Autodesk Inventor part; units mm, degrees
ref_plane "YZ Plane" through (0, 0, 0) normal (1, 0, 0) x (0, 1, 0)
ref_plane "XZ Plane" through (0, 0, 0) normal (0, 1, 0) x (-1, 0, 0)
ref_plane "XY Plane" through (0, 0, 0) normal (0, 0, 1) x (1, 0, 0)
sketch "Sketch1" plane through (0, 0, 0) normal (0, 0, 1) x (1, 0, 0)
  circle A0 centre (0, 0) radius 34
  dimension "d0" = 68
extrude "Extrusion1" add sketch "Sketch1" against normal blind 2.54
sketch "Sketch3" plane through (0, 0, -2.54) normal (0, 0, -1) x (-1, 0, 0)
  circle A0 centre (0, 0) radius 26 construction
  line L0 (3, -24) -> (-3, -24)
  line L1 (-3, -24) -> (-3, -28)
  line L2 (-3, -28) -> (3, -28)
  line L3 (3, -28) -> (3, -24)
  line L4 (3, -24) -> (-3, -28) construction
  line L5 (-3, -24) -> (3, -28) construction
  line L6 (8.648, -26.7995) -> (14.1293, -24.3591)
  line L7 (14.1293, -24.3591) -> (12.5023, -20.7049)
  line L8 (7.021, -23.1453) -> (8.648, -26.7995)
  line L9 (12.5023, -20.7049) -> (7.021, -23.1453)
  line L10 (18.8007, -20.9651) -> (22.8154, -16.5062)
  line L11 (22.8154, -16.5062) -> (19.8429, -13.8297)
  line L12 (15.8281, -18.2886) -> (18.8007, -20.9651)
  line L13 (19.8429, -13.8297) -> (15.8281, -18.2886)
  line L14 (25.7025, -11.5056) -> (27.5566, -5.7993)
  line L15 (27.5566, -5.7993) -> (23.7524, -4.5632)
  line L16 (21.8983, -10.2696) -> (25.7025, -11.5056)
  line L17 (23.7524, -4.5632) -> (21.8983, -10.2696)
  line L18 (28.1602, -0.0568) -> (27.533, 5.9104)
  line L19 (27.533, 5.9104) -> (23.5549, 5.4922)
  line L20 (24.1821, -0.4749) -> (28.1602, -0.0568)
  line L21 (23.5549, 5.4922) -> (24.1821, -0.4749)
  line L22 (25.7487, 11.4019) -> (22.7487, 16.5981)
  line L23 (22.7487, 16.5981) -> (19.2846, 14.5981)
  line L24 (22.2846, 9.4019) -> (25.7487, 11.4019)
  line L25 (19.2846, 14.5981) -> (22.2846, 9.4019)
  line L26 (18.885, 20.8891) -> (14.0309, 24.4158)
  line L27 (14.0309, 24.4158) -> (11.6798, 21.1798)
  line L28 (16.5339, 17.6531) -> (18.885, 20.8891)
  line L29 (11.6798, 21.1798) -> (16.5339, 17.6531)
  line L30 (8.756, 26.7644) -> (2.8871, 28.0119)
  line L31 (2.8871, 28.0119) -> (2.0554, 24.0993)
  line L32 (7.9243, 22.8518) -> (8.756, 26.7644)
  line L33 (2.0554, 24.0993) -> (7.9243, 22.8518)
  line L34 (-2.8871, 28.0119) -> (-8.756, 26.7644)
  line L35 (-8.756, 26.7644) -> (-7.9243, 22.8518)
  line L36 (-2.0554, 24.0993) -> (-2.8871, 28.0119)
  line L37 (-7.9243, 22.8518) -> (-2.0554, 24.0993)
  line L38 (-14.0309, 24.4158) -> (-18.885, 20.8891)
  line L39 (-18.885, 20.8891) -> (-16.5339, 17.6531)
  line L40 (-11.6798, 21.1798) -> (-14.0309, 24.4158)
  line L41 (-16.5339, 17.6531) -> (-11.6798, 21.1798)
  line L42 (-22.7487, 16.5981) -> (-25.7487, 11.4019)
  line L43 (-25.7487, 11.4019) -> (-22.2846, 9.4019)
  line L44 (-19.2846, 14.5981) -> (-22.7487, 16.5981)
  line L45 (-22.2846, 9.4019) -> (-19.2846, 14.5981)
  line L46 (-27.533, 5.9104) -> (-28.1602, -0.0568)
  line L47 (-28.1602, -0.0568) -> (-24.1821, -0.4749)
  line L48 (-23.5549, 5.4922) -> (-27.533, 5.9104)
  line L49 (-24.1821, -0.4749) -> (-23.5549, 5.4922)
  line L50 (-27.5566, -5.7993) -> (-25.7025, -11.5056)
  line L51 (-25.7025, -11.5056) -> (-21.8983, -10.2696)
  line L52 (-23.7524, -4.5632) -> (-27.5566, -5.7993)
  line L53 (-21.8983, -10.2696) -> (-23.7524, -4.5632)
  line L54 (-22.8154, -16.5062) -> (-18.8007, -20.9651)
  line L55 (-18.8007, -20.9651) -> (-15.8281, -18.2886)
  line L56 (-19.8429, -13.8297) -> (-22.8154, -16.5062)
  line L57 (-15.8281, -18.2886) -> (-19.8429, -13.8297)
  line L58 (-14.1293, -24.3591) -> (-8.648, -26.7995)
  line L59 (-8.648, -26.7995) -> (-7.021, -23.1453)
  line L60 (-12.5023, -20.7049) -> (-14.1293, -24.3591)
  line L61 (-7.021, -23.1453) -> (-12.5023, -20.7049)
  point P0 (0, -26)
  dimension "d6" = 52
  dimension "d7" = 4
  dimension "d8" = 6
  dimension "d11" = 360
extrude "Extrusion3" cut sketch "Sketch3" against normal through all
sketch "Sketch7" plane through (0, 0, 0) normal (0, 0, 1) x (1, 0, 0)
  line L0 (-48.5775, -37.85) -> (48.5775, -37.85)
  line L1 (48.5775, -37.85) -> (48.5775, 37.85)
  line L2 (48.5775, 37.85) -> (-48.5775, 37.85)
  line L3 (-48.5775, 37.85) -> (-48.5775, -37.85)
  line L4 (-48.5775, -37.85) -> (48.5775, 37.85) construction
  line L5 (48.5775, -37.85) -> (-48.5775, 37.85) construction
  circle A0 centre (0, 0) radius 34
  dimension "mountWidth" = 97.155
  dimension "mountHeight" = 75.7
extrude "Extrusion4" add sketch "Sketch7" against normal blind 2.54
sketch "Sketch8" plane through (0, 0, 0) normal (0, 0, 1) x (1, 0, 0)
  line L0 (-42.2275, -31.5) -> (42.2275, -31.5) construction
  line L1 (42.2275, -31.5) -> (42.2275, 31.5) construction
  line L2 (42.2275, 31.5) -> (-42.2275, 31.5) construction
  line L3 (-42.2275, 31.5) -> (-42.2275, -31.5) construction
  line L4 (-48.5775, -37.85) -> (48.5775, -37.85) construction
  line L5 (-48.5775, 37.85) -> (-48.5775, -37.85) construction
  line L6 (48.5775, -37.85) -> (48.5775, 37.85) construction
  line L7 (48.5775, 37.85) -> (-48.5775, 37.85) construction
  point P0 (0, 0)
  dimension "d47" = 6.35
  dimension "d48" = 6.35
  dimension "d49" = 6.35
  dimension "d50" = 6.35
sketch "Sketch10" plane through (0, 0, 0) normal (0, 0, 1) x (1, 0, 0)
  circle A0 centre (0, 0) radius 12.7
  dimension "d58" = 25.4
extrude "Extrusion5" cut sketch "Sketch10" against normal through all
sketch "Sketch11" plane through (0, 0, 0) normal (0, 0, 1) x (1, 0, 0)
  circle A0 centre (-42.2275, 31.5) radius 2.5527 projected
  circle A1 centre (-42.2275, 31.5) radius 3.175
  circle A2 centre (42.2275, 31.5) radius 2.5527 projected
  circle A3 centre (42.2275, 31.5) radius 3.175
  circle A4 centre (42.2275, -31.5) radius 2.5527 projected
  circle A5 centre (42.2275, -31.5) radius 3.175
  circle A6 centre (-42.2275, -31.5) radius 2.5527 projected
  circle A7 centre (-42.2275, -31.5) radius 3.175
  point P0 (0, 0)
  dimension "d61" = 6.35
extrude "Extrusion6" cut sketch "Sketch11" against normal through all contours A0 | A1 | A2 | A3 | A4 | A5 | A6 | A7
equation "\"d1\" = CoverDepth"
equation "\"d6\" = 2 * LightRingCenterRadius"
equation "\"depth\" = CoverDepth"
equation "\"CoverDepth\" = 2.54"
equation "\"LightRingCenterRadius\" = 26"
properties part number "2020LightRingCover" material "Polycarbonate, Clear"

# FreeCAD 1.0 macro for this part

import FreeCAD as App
import Part
import Sketcher
from FreeCAD import Vector
Q = App.Units.Quantity

doc = App.newDocument("Part")
body = doc.addObject("PartDesign::Body", "Body")

sketch1 = body.newObject("Sketcher::SketchObject", "Sketch")
sketch1.AttachmentSupport = (doc.getObject("XY_Plane"), [""])
sketch1.MapMode = "FlatFace"
sketch1.addGeometry(Part.Circle(Vector(0, 0, 0), Vector(0, 0, 1), 34), False)
sketch1.addConstraint([
    Sketcher.Constraint("Coincident", 0, 3, -1, 1),
    Sketcher.Constraint("Diameter", 0, Q("68 mm")),
])
pad1 = body.newObject("PartDesign::Pad", "Pad")
pad1.Profile = sketch1
pad1.Length = 2.54
pad1.Reversed = True

sketch2 = body.newObject("Sketcher::SketchObject", "Sketch001")
sketch2.AttachmentSupport = (doc.getObject("XY_Plane"), [""])
sketch2.MapMode = "FlatFace"
sketch2.AttachmentOffset = App.Placement(Vector(0, 0, -2.54), App.Rotation())
sketch2.addGeometry([
    Part.LineSegment(Vector(-3, -28, 0), Vector(-3, -24, 0)),
    Part.LineSegment(Vector(-3, -24, 0), Vector(3, -24, 0)),
    Part.LineSegment(Vector(3, -24, 0), Vector(3, -28, 0)),
    Part.LineSegment(Vector(3, -28, 0), Vector(-3, -28, 0)),
    Part.LineSegment(Vector(-7, -23.1, 0), Vector(-8.6, -26.8, 0)),
    Part.LineSegment(Vector(-8.6, -26.8, 0), Vector(-14.1, -24.4, 0)),
    Part.LineSegment(Vector(-14.1, -24.4, 0), Vector(-12.5, -20.7, 0)),
    Part.LineSegment(Vector(-12.5, -20.7, 0), Vector(-7, -23.1, 0)),
    Part.LineSegment(Vector(-15.8, -18.3, 0), Vector(-18.8, -21, 0)),
    Part.LineSegment(Vector(-18.8, -21, 0), Vector(-22.8, -16.5, 0)),
    Part.LineSegment(Vector(-22.8, -16.5, 0), Vector(-19.8, -13.8, 0)),
    Part.LineSegment(Vector(-19.8, -13.8, 0), Vector(-15.8, -18.3, 0)),
    Part.LineSegment(Vector(-21.9, -10.3, 0), Vector(-25.7, -11.5, 0)),
    Part.LineSegment(Vector(-25.7, -11.5, 0), Vector(-27.6, -5.8, 0)),
    Part.LineSegment(Vector(-27.6, -5.8, 0), Vector(-23.8, -4.6, 0)),
    Part.LineSegment(Vector(-23.8, -4.6, 0), Vector(-21.9, -10.3, 0)),
    Part.LineSegment(Vector(-24.2, -0.5, 0), Vector(-28.2, -0.1, 0)),
    Part.LineSegment(Vector(-28.2, -0.1, 0), Vector(-27.5, 5.9, 0)),
    Part.LineSegment(Vector(-27.5, 5.9, 0), Vector(-23.6, 5.5, 0)),
    Part.LineSegment(Vector(-23.6, 5.5, 0), Vector(-24.2, -0.5, 0)),
    Part.LineSegment(Vector(-22.3, 9.4, 0), Vector(-25.7, 11.4, 0)),
    Part.LineSegment(Vector(-25.7, 11.4, 0), Vector(-22.7, 16.6, 0)),
    Part.LineSegment(Vector(-22.7, 16.6, 0), Vector(-19.3, 14.6, 0)),
    Part.LineSegment(Vector(-19.3, 14.6, 0), Vector(-22.3, 9.4, 0)),
    Part.LineSegment(Vector(-16.5, 17.7, 0), Vector(-18.9, 20.9, 0)),
    Part.LineSegment(Vector(-18.9, 20.9, 0), Vector(-14, 24.4, 0)),
    Part.LineSegment(Vector(-14, 24.4, 0), Vector(-11.7, 21.2, 0)),
    Part.LineSegment(Vector(-11.7, 21.2, 0), Vector(-16.5, 17.7, 0)),
    Part.LineSegment(Vector(-7.9, 22.9, 0), Vector(-8.8, 26.8, 0)),
    Part.LineSegment(Vector(-8.8, 26.8, 0), Vector(-2.9, 28, 0)),
    Part.LineSegment(Vector(-2.9, 28, 0), Vector(-2.1, 24.1, 0)),
    Part.LineSegment(Vector(-2.1, 24.1, 0), Vector(-7.9, 22.9, 0)),
    Part.LineSegment(Vector(2.1, 24.1, 0), Vector(2.9, 28, 0)),
    Part.LineSegment(Vector(2.9, 28, 0), Vector(8.8, 26.8, 0)),
    Part.LineSegment(Vector(8.8, 26.8, 0), Vector(7.9, 22.9, 0)),
    Part.LineSegment(Vector(7.9, 22.9, 0), Vector(2.1, 24.1, 0)),
    Part.LineSegment(Vector(11.7, 21.2, 0), Vector(14, 24.4, 0)),
    Part.LineSegment(Vector(14, 24.4, 0), Vector(18.9, 20.9, 0)),
    Part.LineSegment(Vector(18.9, 20.9, 0), Vector(16.5, 17.7, 0)),
    Part.LineSegment(Vector(16.5, 17.7, 0), Vector(11.7, 21.2, 0)),
    Part.LineSegment(Vector(19.3, 14.6, 0), Vector(22.7, 16.6, 0)),
    Part.LineSegment(Vector(22.7, 16.6, 0), Vector(25.7, 11.4, 0)),
    Part.LineSegment(Vector(25.7, 11.4, 0), Vector(22.3, 9.4, 0)),
    Part.LineSegment(Vector(22.3, 9.4, 0), Vector(19.3, 14.6, 0)),
    Part.LineSegment(Vector(23.6, 5.5, 0), Vector(27.5, 5.9, 0)),
    Part.LineSegment(Vector(27.5, 5.9, 0), Vector(28.2, -0.1, 0)),
    Part.LineSegment(Vector(28.2, -0.1, 0), Vector(24.2, -0.5, 0)),
    Part.LineSegment(Vector(24.2, -0.5, 0), Vector(23.6, 5.5, 0)),
    Part.LineSegment(Vector(23.8, -4.6, 0), Vector(27.6, -5.8, 0)),
    Part.LineSegment(Vector(27.6, -5.8, 0), Vector(25.7, -11.5, 0)),
    Part.LineSegment(Vector(25.7, -11.5, 0), Vector(21.9, -10.3, 0)),
    Part.LineSegment(Vector(21.9, -10.3, 0), Vector(23.8, -4.6, 0)),
    Part.LineSegment(Vector(19.8, -13.8, 0), Vector(22.8, -16.5, 0)),
    Part.LineSegment(Vector(22.8, -16.5, 0), Vector(18.8, -21, 0)),
    Part.LineSegment(Vector(18.8, -21, 0), Vector(15.8, -18.3, 0)),
    Part.LineSegment(Vector(15.8, -18.3, 0), Vector(19.8, -13.8, 0)),
    Part.LineSegment(Vector(12.5, -20.7, 0), Vector(14.1, -24.4, 0)),
    Part.LineSegment(Vector(14.1, -24.4, 0), Vector(8.6, -26.8, 0)),
    Part.LineSegment(Vector(8.6, -26.8, 0), Vector(7, -23.1, 0)),
    Part.LineSegment(Vector(7, -23.1, 0), Vector(12.5, -20.7, 0)),
], False)
sketch2.addConstraint([
    Sketcher.Constraint("Coincident", 0, 2, 1, 1),
    Sketcher.Constraint("Coincident", 1, 2, 2, 1),
    Sketcher.Constraint("Coincident", 2, 2, 3, 1),
    Sketcher.Constraint("Coincident", 3, 2, 0, 1),
    Sketcher.Constraint("Coincident", 4, 2, 5, 1),
    Sketcher.Constraint("Coincident", 5, 2, 6, 1),
    Sketcher.Constraint("Coincident", 6, 2, 7, 1),
    Sketcher.Constraint("Coincident", 7, 2, 4, 1),
    Sketcher.Constraint("Coincident", 8, 2, 9, 1),
    Sketcher.Constraint("Coincident", 9, 2, 10, 1),
    Sketcher.Constraint("Coincident", 10, 2, 11, 1),
    Sketcher.Constraint("Coincident", 11, 2, 8, 1),
    Sketcher.Constraint("Coincident", 12, 2, 13, 1),
    Sketcher.Constraint("Coincident", 13, 2, 14, 1),
    Sketcher.Constraint("Coincident", 14, 2, 15, 1),
    Sketcher.Constraint("Coincident", 15, 2, 12, 1),
    Sketcher.Constraint("Coincident", 16, 2, 17, 1),
    Sketcher.Constraint("Coincident", 17, 2, 18, 1),
    Sketcher.Constraint("Coincident", 18, 2, 19, 1),
    Sketcher.Constraint("Coincident", 19, 2, 16, 1),
    Sketcher.Constraint("Coincident", 20, 2, 21, 1),
    Sketcher.Constraint("Coincident", 21, 2, 22, 1),
    Sketcher.Constraint("Coincident", 22, 2, 23, 1),
    Sketcher.Constraint("Coincident", 23, 2, 20, 1),
    Sketcher.Constraint("Coincident", 24, 2, 25, 1),
    Sketcher.Constraint("Coincident", 25, 2, 26, 1),
    Sketcher.Constraint("Coincident", 26, 2, 27, 1),
    Sketcher.Constraint("Coincident", 27, 2, 24, 1),
    Sketcher.Constraint("Coincident", 28, 2, 29, 1),
    Sketcher.Constraint("Coincident", 29, 2, 30, 1),
    Sketcher.Constraint("Coincident", 30, 2, 31, 1),
    Sketcher.Constraint("Coincident", 31, 2, 28, 1),
    Sketcher.Constraint("Coincident", 32, 2, 33, 1),
    Sketcher.Constraint("Coincident", 33, 2, 34, 1),
    Sketcher.Constraint("Coincident", 34, 2, 35, 1),
    Sketcher.Constraint("Coincident", 35, 2, 32, 1),
    Sketcher.Constraint("Coincident", 36, 2, 37, 1),
    Sketcher.Constraint("Coincident", 37, 2, 38, 1),
    Sketcher.Constraint("Coincident", 38, 2, 39, 1),
    Sketcher.Constraint("Coincident", 39, 2, 36, 1),
    Sketcher.Constraint("Coincident", 40, 2, 41, 1),
    Sketcher.Constraint("Coincident", 41, 2, 42, 1),
    Sketcher.Constraint("Coincident", 42, 2, 43, 1),
    Sketcher.Constraint("Coincident", 43, 2, 40, 1),
    Sketcher.Constraint("Coincident", 44, 2, 45, 1),
    Sketcher.Constraint("Coincident", 45, 2, 46, 1),
    Sketcher.Constraint("Coincident", 46, 2, 47, 1),
    Sketcher.Constraint("Coincident", 47, 2, 44, 1),
    Sketcher.Constraint("Coincident", 48, 2, 49, 1),
    Sketcher.Constraint("Coincident", 49, 2, 50, 1),
    Sketcher.Constraint("Coincident", 50, 2, 51, 1),
    Sketcher.Constraint("Coincident", 51, 2, 48, 1),
    Sketcher.Constraint("Coincident", 52, 2, 53, 1),
    Sketcher.Constraint("Coincident", 53, 2, 54, 1),
    Sketcher.Constraint("Coincident", 54, 2, 55, 1),
    Sketcher.Constraint("Coincident", 55, 2, 52, 1),
    Sketcher.Constraint("Coincident", 56, 2, 57, 1),
    Sketcher.Constraint("Coincident", 57, 2, 58, 1),
    Sketcher.Constraint("Coincident", 58, 2, 59, 1),
    Sketcher.Constraint("Coincident", 59, 2, 56, 1),
    Sketcher.Constraint("Vertical", 0),
    Sketcher.Constraint("Horizontal", 1),
    Sketcher.Constraint("Vertical", 2),
    Sketcher.Constraint("Horizontal", 3),
    Sketcher.Constraint("Symmetric", 29, 2, 32, 2, -2),
    Sketcher.Constraint("Symmetric", 28, 2, 33, 2, -2),
    Sketcher.Constraint("Symmetric", 31, 2, 34, 2, -2),
    Sketcher.Constraint("Symmetric", 30, 2, 35, 2, -2),
    Sketcher.Constraint("Symmetric", 25, 2, 36, 2, -2),
    Sketcher.Constraint("Symmetric", 24, 2, 37, 2, -2),
    Sketcher.Constraint("Symmetric", 27, 2, 38, 2, -2),
    Sketcher.Constraint("Symmetric", 26, 2, 39, 2, -2),
    Sketcher.Constraint("Symmetric", 21, 2, 40, 2, -2),
    Sketcher.Constraint("Symmetric", 20, 2, 41, 2, -2),
    Sketcher.Constraint("Symmetric", 23, 2, 42, 2, -2),
    Sketcher.Constraint("Symmetric", 22, 2, 43, 2, -2),
    Sketcher.Constraint("Symmetric", 17, 2, 44, 2, -2),
    Sketcher.Constraint("Symmetric", 16, 2, 45, 2, -2),
    Sketcher.Constraint("Symmetric", 19, 2, 46, 2, -2),
    Sketcher.Constraint("Symmetric", 18, 2, 47, 2, -2),
    Sketcher.Constraint("Symmetric", 13, 2, 48, 2, -2),
    Sketcher.Constraint("Symmetric", 12, 2, 49, 2, -2),
    Sketcher.Constraint("Symmetric", 15, 2, 50, 2, -2),
    Sketcher.Constraint("Symmetric", 14, 2, 51, 2, -2),
    Sketcher.Constraint("Symmetric", 9, 2, 52, 2, -2),
    Sketcher.Constraint("Symmetric", 8, 2, 53, 2, -2),
    Sketcher.Constraint("Symmetric", 11, 2, 54, 2, -2),
    Sketcher.Constraint("Symmetric", 10, 2, 55, 2, -2),
    Sketcher.Constraint("Symmetric", 5, 2, 56, 2, -2),
    Sketcher.Constraint("Symmetric", 4, 2, 57, 2, -2),
    Sketcher.Constraint("Symmetric", 7, 2, 58, 2, -2),
    Sketcher.Constraint("Symmetric", 6, 2, 59, 2, -2),
    Sketcher.Constraint("Perpendicular", 4, 5),
    Sketcher.Constraint("Perpendicular", 5, 6),
    Sketcher.Constraint("Perpendicular", 6, 7),
    Sketcher.Constraint("Perpendicular", 8, 9),
    Sketcher.Constraint("Perpendicular", 9, 10),
    Sketcher.Constraint("Perpendicular", 10, 11),
    Sketcher.Constraint("Perpendicular", 12, 13),
    Sketcher.Constraint("Perpendicular", 13, 14),
    Sketcher.Constraint("Perpendicular", 14, 15),
    Sketcher.Constraint("Perpendicular", 16, 17),
    Sketcher.Constraint("Perpendicular", 17, 18),
    Sketcher.Constraint("Perpendicular", 18, 19),
    Sketcher.Constraint("Perpendicular", 20, 21),
    Sketcher.Constraint("Perpendicular", 21, 22),
    Sketcher.Constraint("Perpendicular", 22, 23),
    Sketcher.Constraint("Perpendicular", 24, 25),
    Sketcher.Constraint("Perpendicular", 25, 26),
    Sketcher.Constraint("Perpendicular", 26, 27),
    Sketcher.Constraint("Perpendicular", 28, 29),
    Sketcher.Constraint("Perpendicular", 29, 30),
    Sketcher.Constraint("Perpendicular", 30, 31),
    Sketcher.Constraint("Equal", 6, 8),
    Sketcher.Constraint("Equal", 7, 9),
    Sketcher.Constraint("Equal", 10, 12),
    Sketcher.Constraint("Equal", 11, 13),
    Sketcher.Constraint("Equal", 14, 16),
    Sketcher.Constraint("Equal", 15, 17),
    Sketcher.Constraint("Equal", 18, 20),
    Sketcher.Constraint("Equal", 19, 21),
    Sketcher.Constraint("Equal", 22, 24),
    Sketcher.Constraint("Equal", 23, 25),
    Sketcher.Constraint("Equal", 26, 28),
    Sketcher.Constraint("Equal", 27, 29),
    Sketcher.Constraint("DistanceX", 1, 1, 1, 2, Q("6 mm")),
    Sketcher.Constraint("DistanceY", 0, 1, 0, 2, Q("4 mm")),
    Sketcher.Constraint("Distance", 4, Q("4 mm")),
    Sketcher.Constraint("Distance", 5, Q("6 mm")),
    Sketcher.Constraint("Angle", 4, Q("-114.0006 deg")),
    Sketcher.Constraint("Angle", 8, Q("-138.0004 deg")),
    Sketcher.Constraint("Angle", 12, Q("-162.0008 deg")),
    Sketcher.Constraint("Angle", 16, Q("174.0002 deg")),
    Sketcher.Constraint("Angle", 20, Q("150 deg")),
    Sketcher.Constraint("Angle", 24, Q("126 deg")),
    Sketcher.Constraint("Angle", 28, Q("102.0007 deg")),
    Sketcher.Constraint("DistanceX", 0, 2, -1, 1, Q("3 mm")),
    Sketcher.Constraint("DistanceY", 0, 2, -1, 1, Q("24 mm")),
    Sketcher.Constraint("DistanceY", 10, 2, 15, 2, Q("3.56 mm")),
    Sketcher.Constraint("DistanceY", 15, 2, 17, 2, Q("16.18 mm")),
    Sketcher.Constraint("DistanceX", 18, 2, 24, 2, Q("4.67 mm")),
    Sketcher.Constraint("DistanceX", 57, 2, 54, 2, Q("7.18 mm")),
    Sketcher.Constraint("DistanceX", 4, 2, -1, 1, Q("8.648 mm")),
    Sketcher.Constraint("DistanceY", 5, 2, -1, 1, Q("24.359 mm")),
    Sketcher.Constraint("DistanceY", 8, 2, -1, 1, Q("20.965 mm")),
    Sketcher.Constraint("DistanceX", 17, 2, -1, 1, Q("27.533 mm")),
    Sketcher.Constraint("DistanceY", -1, 1, 20, 2, Q("11.402 mm")),
    Sketcher.Constraint("DistanceY", -1, 1, 24, 2, Q("20.889 mm")),
    Sketcher.Constraint("DistanceX", 28, 2, -1, 1, Q("8.756 mm")),
    Sketcher.Constraint("DistanceY", -1, 1, 29, 2, Q("28.012 mm")),
    Sketcher.Constraint("DistanceX", 12, 2, 9, 2, Q("2.887 mm")),
    Sketcher.Constraint("DistanceX", 21, 2, 26, 2, Q("11.069 mm")),
])
pocket1 = body.newObject("PartDesign::Pocket", "Pocket")
pocket1.Profile = sketch2
pocket1.Type = "ThroughAll"
pocket1.Reversed = True

sketch3 = body.newObject("Sketcher::SketchObject", "Sketch002")
sketch3.AttachmentSupport = (doc.getObject("XY_Plane"), [""])
sketch3.MapMode = "FlatFace"
sketch3.addGeometry([
    Part.LineSegment(Vector(-49, 38, 0), Vector(-49, -38, 0)),
    Part.LineSegment(Vector(-49, -38, 0), Vector(49, -38, 0)),
    Part.LineSegment(Vector(49, -38, 0), Vector(49, 38, 0)),
    Part.LineSegment(Vector(49, 38, 0), Vector(-49, 38, 0)),
    Part.Circle(Vector(0, 0, 0), Vector(0, 0, 1), 34),
], False)
sketch3.addConstraint([
    Sketcher.Constraint("Coincident", 0, 2, 1, 1),
    Sketcher.Constraint("Coincident", 1, 2, 2, 1),
    Sketcher.Constraint("Coincident", 2, 2, 3, 1),
    Sketcher.Constraint("Coincident", 3, 2, 0, 1),
    Sketcher.Constraint("Vertical", 0),
    Sketcher.Constraint("Horizontal", 1),
    Sketcher.Constraint("Vertical", 2),
    Sketcher.Constraint("Horizontal", 3),
    Sketcher.Constraint("Coincident", 4, 3, -1, 1),
    Sketcher.Constraint("Symmetric", 0, 2, 2, 2, -1, 1),
    Sketcher.Constraint("Diameter", 4, Q("68 mm")),
    Sketcher.Constraint("DistanceY", 0, 2, 0, 1, Q("75.7 mm")),
    Sketcher.Constraint("DistanceX", 1, 1, 1, 2, Q("97.155 mm")),
])
pad2 = body.newObject("PartDesign::Pad", "Pad001")
pad2.Profile = sketch3
pad2.Length = 2.54
pad2.Reversed = True

sketch4 = body.newObject("Sketcher::SketchObject", "Sketch003")
sketch4.AttachmentSupport = (doc.getObject("XY_Plane"), [""])
sketch4.MapMode = "FlatFace"
sketch4.addGeometry(Part.Circle(Vector(0, 0, 0), Vector(0, 0, 1), 13), False)
sketch4.addConstraint([
    Sketcher.Constraint("Coincident", 0, 3, -1, 1),
    Sketcher.Constraint("Diameter", 0, Q("25.4 mm")),
])
pocket2 = body.newObject("PartDesign::Pocket", "Pocket001")
pocket2.Profile = sketch4
pocket2.Type = "ThroughAll"

sketch5 = body.newObject("Sketcher::SketchObject", "Sketch004")
sketch5.AttachmentSupport = (doc.getObject("XY_Plane"), [""])
sketch5.MapMode = "FlatFace"
sketch5.addGeometry([
    Part.Circle(Vector(-42.2, 31.5, 0), Vector(0, 0, 1), 3.2),
    Part.Circle(Vector(42.2, 31.5, 0), Vector(0, 0, 1), 3.2),
    Part.Circle(Vector(42.2, -31.5, 0), Vector(0, 0, 1), 3.2),
    Part.Circle(Vector(-42.2, -31.5, 0), Vector(0, 0, 1), 3.2),
], False)
sketch5.addConstraint([
    Sketcher.Constraint("Equal", 0, 1),
    Sketcher.Constraint("Equal", 1, 2),
    Sketcher.Constraint("Equal", 2, 3),
    Sketcher.Constraint("Symmetric", 0, 3, 2, 3, -1, 1),
    Sketcher.Constraint("Symmetric", 1, 3, 3, 3, -1, 1),
    Sketcher.Constraint("Symmetric", 0, 3, 1, 3, -2),
    Sketcher.Constraint("Diameter", 0, Q("6.35 mm")),
    Sketcher.Constraint("DistanceY", 2, 3, 1, 3, Q("63 mm")),
    Sketcher.Constraint("DistanceX", 0, 3, 1, 3, Q("84.455 mm")),
])
pocket3 = body.newObject("PartDesign::Pocket", "Pocket002")
pocket3.Profile = sketch5
pocket3.Type = "ThroughAll"

doc.recompute()
